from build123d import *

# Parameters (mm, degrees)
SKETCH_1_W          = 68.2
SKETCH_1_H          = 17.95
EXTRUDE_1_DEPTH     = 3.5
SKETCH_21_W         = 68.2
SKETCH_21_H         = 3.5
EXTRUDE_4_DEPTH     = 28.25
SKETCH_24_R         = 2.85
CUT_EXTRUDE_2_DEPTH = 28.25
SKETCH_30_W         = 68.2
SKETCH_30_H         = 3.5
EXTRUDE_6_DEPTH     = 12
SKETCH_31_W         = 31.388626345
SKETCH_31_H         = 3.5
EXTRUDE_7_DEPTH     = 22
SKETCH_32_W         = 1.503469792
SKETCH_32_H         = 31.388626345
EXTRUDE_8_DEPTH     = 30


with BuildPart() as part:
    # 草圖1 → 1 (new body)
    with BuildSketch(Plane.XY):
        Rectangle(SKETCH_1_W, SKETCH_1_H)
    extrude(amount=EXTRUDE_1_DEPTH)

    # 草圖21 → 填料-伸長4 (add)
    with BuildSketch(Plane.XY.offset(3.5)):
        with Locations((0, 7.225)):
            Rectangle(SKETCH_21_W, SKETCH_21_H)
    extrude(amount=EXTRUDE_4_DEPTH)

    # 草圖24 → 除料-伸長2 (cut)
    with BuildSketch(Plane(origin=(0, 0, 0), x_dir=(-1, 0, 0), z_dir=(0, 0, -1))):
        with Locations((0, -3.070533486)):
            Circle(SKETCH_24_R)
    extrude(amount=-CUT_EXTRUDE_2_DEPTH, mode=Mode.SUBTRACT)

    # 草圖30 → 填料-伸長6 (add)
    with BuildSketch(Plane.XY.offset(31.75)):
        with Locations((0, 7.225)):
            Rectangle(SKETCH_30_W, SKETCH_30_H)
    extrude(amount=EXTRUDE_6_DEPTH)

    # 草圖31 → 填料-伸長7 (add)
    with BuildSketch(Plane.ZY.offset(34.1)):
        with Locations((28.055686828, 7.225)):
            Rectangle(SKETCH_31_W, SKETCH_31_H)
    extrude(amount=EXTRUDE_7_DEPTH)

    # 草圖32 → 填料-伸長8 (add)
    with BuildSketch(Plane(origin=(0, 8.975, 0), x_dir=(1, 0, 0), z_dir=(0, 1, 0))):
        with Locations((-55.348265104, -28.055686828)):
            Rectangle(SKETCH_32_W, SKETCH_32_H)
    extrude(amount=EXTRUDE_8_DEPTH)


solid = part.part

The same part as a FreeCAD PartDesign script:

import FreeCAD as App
import Part
import Sketcher
from FreeCAD import Vector
Q = App.Units.Quantity

doc = App.newDocument("Part")
body = doc.addObject("PartDesign::Body", "Body")

# Sketch on XY plane
sketch1 = body.newObject("Sketcher::SketchObject", "Sketch")
sketch1.AttachmentSupport = (doc.getObject("XY_Plane"), [""])
sketch1.MapMode = "FlatFace"
sketch1.addGeometry([
    Part.LineSegment(Vector(-34, 9, 0), Vector(-34, -9, 0)),
    Part.LineSegment(Vector(-34, -9, 0), Vector(34, -9, 0)),
    Part.LineSegment(Vector(34, -9, 0), Vector(34, 9, 0)),
    Part.LineSegment(Vector(34, 9, 0), Vector(-34, 9, 0)),
], False)
sketch1.addConstraint([
    Sketcher.Constraint("Coincident", 0, 2, 1, 1),
    Sketcher.Constraint("Coincident", 1, 2, 2, 1),
    Sketcher.Constraint("Coincident", 2, 2, 3, 1),
    Sketcher.Constraint("Coincident", 3, 2, 0, 1),
    Sketcher.Constraint("Vertical", 0),
    Sketcher.Constraint("Horizontal", 1),
    Sketcher.Constraint("Vertical", 2),
    Sketcher.Constraint("Horizontal", 3),
    Sketcher.Constraint("Symmetric", 0, 2, 2, 2, -1, 1),
    Sketcher.Constraint("DistanceX", 1, 1, 1, 2, Q("68.2 mm")),
    Sketcher.Constraint("DistanceY", 0, 2, 0, 1, Q("17.95 mm")),
])
pad1 = body.newObject("PartDesign::Pad", "Pad")
pad1.Profile = sketch1
pad1.Length = 3.5

# Sketch on XY plane
sketch2 = body.newObject("Sketcher::SketchObject", "Sketch001")
sketch2.AttachmentSupport = (doc.getObject("XY_Plane"), [""])
sketch2.MapMode = "FlatFace"
sketch2.AttachmentOffset = App.Placement(Vector(0, 0, 3.5), App.Rotation())
sketch2.addGeometry([
    Part.LineSegment(Vector(-34.1, 9, 0), Vector(-34.1, 5.5, 0)),
    Part.LineSegment(Vector(-34.1, 5.5, 0), Vector(34.1, 5.5, 0)),
    Part.LineSegment(Vector(34.1, 5.5, 0), Vector(34.1, 9, 0)),
    Part.LineSegment(Vector(34.1, 9, 0), Vector(-34.1, 9, 0)),
], False)
sketch2.addConstraint([
    Sketcher.Constraint("Coincident", 0, 2, 1, 1),
    Sketcher.Constraint("Coincident", 1, 2, 2, 1),
    Sketcher.Constraint("Coincident", 2, 2, 3, 1),
    Sketcher.Constraint("Coincident", 3, 2, 0, 1),
    Sketcher.Constraint("Vertical", 0),
    Sketcher.Constraint("Horizontal", 1),
    Sketcher.Constraint("Vertical", 2),
    Sketcher.Constraint("Horizontal", 3),
    Sketcher.Constraint("DistanceX", 1, 1, 1, 2, Q("68.2 mm")),
    Sketcher.Constraint("DistanceY", 0, 2, 0, 1, Q("3.5 mm")),
    Sketcher.Constraint("DistanceX", 0, 2, -1, 1, Q("34.1 mm")),
    Sketcher.Constraint("DistanceY", -1, 1, 0, 2, Q("5.475 mm")),
])
pad2 = body.newObject("PartDesign::Pad", "Pad001")
pad2.Profile = sketch2
pad2.Length = 28.25

# Sketch on XY plane
sketch3 = body.newObject("Sketcher::SketchObject", "Sketch002")
sketch3.AttachmentSupport = (doc.getObject("XY_Plane"), [""])
sketch3.MapMode = "FlatFace"
sketch3.addGeometry(Part.Circle(Vector(0, -3.1, 0), Vector(0, 0, 1), 2.9), False)
sketch3.addConstraint([
    Sketcher.Constraint("PointOnObject", 0, 3, -2),
    Sketcher.Constraint("Diameter", 0, Q("5.7 mm")),
    Sketcher.Constraint("DistanceY", 0, 3, -1, 1, Q("3.070533 mm")),
])
pocket1 = body.newObject("PartDesign::Pocket", "Pocket")
pocket1.Profile = sketch3
pocket1.Length = 28.25
pocket1.Reversed = True

# Sketch on XY plane
sketch4 = body.newObject("Sketcher::SketchObject", "Sketch003")
sketch4.AttachmentSupport = (doc.getObject("XY_Plane"), [""])
sketch4.MapMode = "FlatFace"
sketch4.AttachmentOffset = App.Placement(Vector(0, 0, 31.75), App.Rotation())
sketch4.addGeometry([
    Part.LineSegment(Vector(-34.1, 9, 0), Vector(-34.1, 5.5, 0)),
    Part.LineSegment(Vector(-34.1, 5.5, 0), Vector(34.1, 5.5, 0)),
    Part.LineSegment(Vector(34.1, 5.5, 0), Vector(34.1, 9, 0)),
    Part.LineSegment(Vector(34.1, 9, 0), Vector(-34.1, 9, 0)),
], False)
sketch4.addConstraint([
    Sketcher.Constraint("Coincident", 0, 2, 1, 1),
    Sketcher.Constraint("Coincident", 1, 2, 2, 1),
    Sketcher.Constraint("Coincident", 2, 2, 3, 1),
    Sketcher.Constraint("Coincident", 3, 2, 0, 1),
    Sketcher.Constraint("Vertical", 0),
    Sketcher.Constraint("Horizontal", 1),
    Sketcher.Constraint("Vertical", 2),
    Sketcher.Constraint("Horizontal", 3),
    Sketcher.Constraint("DistanceX", 1, 1, 1, 2, Q("68.2 mm")),
    Sketcher.Constraint("DistanceY", 0, 2, 0, 1, Q("3.5 mm")),
    Sketcher.Constraint("DistanceX", 0, 2, -1, 1, Q("34.1 mm")),
    Sketcher.Constraint("DistanceY", -1, 1, 0, 2, Q("5.475 mm")),
])
pad3 = body.newObject("PartDesign::Pad", "Pad002")
pad3.Profile = sketch4
pad3.Length = 12

# Sketch on YZ plane
sketch5 = body.newObject("Sketcher::SketchObject", "Sketch004")
sketch5.AttachmentSupport = (doc.getObject("YZ_Plane"), [""])
sketch5.MapMode = "FlatFace"
sketch5.AttachmentOffset = App.Placement(Vector(0, 0, -34.1), App.Rotation())
sketch5.addGeometry([
    Part.LineSegment(Vector(9, 12.4, 0), Vector(5.5, 12.4, 0)),
    Part.LineSegment(Vector(5.5, 12.4, 0), Vector(5.5, 43.8, 0)),
    Part.LineSegment(Vector(5.5, 43.8, 0), Vector(9, 43.8, 0)),
    Part.LineSegment(Vector(9, 43.8, 0), Vector(9, 12.4, 0)),
], False)
sketch5.addConstraint([
    Sketcher.Constraint("Coincident", 0, 2, 1, 1),
    Sketcher.Constraint("Coincident", 1, 2, 2, 1),
    Sketcher.Constraint("Coincident", 2, 2, 3, 1),
    Sketcher.Constraint("Coincident", 3, 2, 0, 1),
    Sketcher.Constraint("Horizontal", 0),
    Sketcher.Constraint("Vertical", 1),
    Sketcher.Constraint("Horizontal", 2),
    Sketcher.Constraint("Vertical", 3),
    Sketcher.Constraint("DistanceX", 0, 2, 0, 1, Q("3.5 mm")),
    Sketcher.Constraint("DistanceY", -1, 1, 1, 2, Q("43.75 mm")),
    Sketcher.Constraint("DistanceX", -1, 1, 0, 2, Q("5.475 mm")),
    Sketcher.Constraint("DistanceY", 1, 1, 1, 2, Q("31.388626 mm")),
])
pad4 = body.newObject("PartDesign::Pad", "Pad003")
pad4.Profile = sketch5
pad4.Length = 22
pad4.Reversed = True

# Sketch on XZ plane
sketch6 = body.newObject("Sketcher::SketchObject", "Sketch005")
sketch6.AttachmentSupport = (doc.getObject("XZ_Plane"), [""])
sketch6.MapMode = "FlatFace"
sketch6.AttachmentOffset = App.Placement(Vector(0, 0, -8.975), App.Rotation())
sketch6.addGeometry([
    Part.LineSegment(Vector(-56.1, 12.4, 0), Vector(-56.1, 43.8, 0)),
    Part.LineSegment(Vector(-56.1, 43.8, 0), Vector(-54.6, 43.8, 0)),
    Part.LineSegment(Vector(-54.6, 43.8, 0), Vector(-54.6, 12.4, 0)),
    Part.LineSegment(Vector(-54.6, 12.4, 0), Vector(-56.1, 12.4, 0)),
], False)
sketch6.addConstraint([
    Sketcher.Constraint("Coincident", 0, 2, 1, 1),
    Sketcher.Constraint("Coincident", 1, 2, 2, 1),
    Sketcher.Constraint("Coincident", 2, 2, 3, 1),
    Sketcher.Constraint("Coincident", 3, 2, 0, 1),
    Sketcher.Constraint("Vertical", 0),
    Sketcher.Constraint("Horizontal", 1),
    Sketcher.Constraint("Vertical", 2),
    Sketcher.Constraint("Horizontal", 3),
    Sketcher.Constraint("DistanceX", 0, 2, -1, 1, Q("56.1 mm")),
    Sketcher.Constraint("DistanceY", -1, 1, 0, 2, Q("43.75 mm")),
    Sketcher.Constraint("DistanceX", 1, 1, 1, 2, Q("1.50347 mm")),
    Sketcher.Constraint("DistanceY", 0, 1, 0, 2, Q("31.388626 mm")),
])
pad5 = body.newObject("PartDesign::Pad", "Pad004")
pad5.Profile = sketch6
pad5.Length = 30
pad5.Reversed = True

doc.recompute()
